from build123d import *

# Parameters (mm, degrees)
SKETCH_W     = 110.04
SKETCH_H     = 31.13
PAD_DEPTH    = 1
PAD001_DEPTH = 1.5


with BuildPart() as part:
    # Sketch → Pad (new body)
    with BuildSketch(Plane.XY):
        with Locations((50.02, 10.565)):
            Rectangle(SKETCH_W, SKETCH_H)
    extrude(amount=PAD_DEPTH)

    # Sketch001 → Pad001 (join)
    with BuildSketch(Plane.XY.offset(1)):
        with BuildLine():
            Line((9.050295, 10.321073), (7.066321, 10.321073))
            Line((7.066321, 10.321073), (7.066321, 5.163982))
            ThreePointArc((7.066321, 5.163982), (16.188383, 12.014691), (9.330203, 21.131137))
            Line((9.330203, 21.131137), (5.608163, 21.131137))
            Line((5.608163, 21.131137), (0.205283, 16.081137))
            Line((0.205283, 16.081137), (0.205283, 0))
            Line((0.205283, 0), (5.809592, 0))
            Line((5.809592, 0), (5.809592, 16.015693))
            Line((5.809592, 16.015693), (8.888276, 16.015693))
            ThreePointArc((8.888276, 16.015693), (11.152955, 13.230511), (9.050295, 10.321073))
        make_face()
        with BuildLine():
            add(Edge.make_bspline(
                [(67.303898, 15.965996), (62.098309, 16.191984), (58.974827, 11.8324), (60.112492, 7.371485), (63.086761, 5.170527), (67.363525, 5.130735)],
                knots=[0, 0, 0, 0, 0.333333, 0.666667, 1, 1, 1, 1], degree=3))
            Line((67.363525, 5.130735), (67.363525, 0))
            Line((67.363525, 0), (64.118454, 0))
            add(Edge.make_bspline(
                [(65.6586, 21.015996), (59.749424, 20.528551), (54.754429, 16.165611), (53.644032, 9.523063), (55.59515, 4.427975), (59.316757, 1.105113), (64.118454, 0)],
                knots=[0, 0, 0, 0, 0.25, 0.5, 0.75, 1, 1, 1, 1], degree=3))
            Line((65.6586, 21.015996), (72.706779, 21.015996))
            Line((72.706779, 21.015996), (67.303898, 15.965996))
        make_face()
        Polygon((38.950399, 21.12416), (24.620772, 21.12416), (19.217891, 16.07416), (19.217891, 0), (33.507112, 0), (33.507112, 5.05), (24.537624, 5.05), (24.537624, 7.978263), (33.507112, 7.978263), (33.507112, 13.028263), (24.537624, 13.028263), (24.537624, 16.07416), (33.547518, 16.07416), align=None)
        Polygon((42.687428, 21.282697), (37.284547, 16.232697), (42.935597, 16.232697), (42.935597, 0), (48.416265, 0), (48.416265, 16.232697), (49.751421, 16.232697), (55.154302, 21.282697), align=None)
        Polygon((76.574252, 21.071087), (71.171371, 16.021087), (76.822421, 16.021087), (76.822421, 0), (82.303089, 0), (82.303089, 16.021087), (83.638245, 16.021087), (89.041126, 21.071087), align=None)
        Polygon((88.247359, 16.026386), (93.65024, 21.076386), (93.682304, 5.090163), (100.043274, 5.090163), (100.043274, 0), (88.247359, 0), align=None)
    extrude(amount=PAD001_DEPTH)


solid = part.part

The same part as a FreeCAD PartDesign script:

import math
import FreeCAD as App
import Part
import Sketcher
from FreeCAD import Vector
Q = App.Units.Quantity

doc = App.newDocument("Part")
params = doc.addObject("Spreadsheet::Sheet", "Params")
for row, (alias, value) in enumerate([
    ("sketch1_width", "110.04 mm"),
    ("sketch1_height", "31.13 mm"),
    ("pad1_length", "1 mm"),
    ("sketch2_height", "5.05 mm"),
    ("pad2_length", "1.5 mm"),
], start=1):
    params.set(f"A{row}", alias)
    params.set(f"B{row}", "=" + value)
    params.setAlias(f"B{row}", alias)

body = doc.addObject("PartDesign::Body", "Body")

# Sketch on XY plane
sketch1 = body.newObject("Sketcher::SketchObject", "Sketch")
sketch1.AttachmentSupport = (doc.getObject("XY_Plane"), [""])
sketch1.MapMode = "FlatFace"
sketch1.addGeometry([
    Part.LineSegment(Vector(-5, 26.13, 0), Vector(-5, -5, 0)),
    Part.LineSegment(Vector(-5, -5, 0), Vector(105.04, -5, 0)),
    Part.LineSegment(Vector(105.04, -5, 0), Vector(105.04, 26.13, 0)),
    Part.LineSegment(Vector(105.04, 26.13, 0), Vector(-5, 26.13, 0)),
], False)
sketch1.addConstraint([
    Sketcher.Constraint("Coincident", 0, 2, 1, 1),
    Sketcher.Constraint("Coincident", 1, 2, 2, 1),
    Sketcher.Constraint("Coincident", 2, 2, 3, 1),
    Sketcher.Constraint("Coincident", 3, 2, 0, 1),
    Sketcher.Constraint("Vertical", 0),
    Sketcher.Constraint("Horizontal", 1),
    Sketcher.Constraint("Vertical", 2),
    Sketcher.Constraint("Horizontal", 3),
    Sketcher.Constraint("DistanceX", 0, 2, -1, 1, Q("5 mm")),
    Sketcher.Constraint("DistanceY", 0, 2, -1, 1, Q("5 mm")),
    Sketcher.Constraint("DistanceX", 1, 1, 1, 2, Q("110.04 mm")),
    Sketcher.Constraint("DistanceY", 0, 2, 0, 1, Q("31.13 mm")),
])
sketch1.setExpression("Constraints[10]", "Params.sketch1_width")
sketch1.setExpression("Constraints[11]", "Params.sketch1_height")
pad1 = body.newObject("PartDesign::Pad", "Pad")
pad1.Profile = sketch1
pad1.setExpression("Length", "Params.pad1_length")

# Sketch on XY plane
sketch2 = body.newObject("Sketcher::SketchObject", "Sketch001")
sketch2.AttachmentSupport = (doc.getObject("XY_Plane"), [""])
sketch2.MapMode = "FlatFace"
sketch2.AttachmentOffset = App.Placement(Vector(0, 0, 1), App.Rotation())
sketch2.addGeometry([
    Part.LineSegment(Vector(9.050295, 10.321073, 0), Vector(7.066321, 10.321073, 0)),  # 0
    Part.LineSegment(Vector(7.066321, 10.321073, 0), Vector(7.066321, 5.163982, 0)),  # 1
    Part.ArcOfCircle(Part.Circle(Vector(8.204803, 13.146632, 0), Vector(0, 0, 1), 8.063426), math.radians(-98.11676), math.radians(81.977123)),  # 2
    Part.LineSegment(Vector(9.330203, 21.131137, 0), Vector(5.608163, 21.131137, 0)),  # 3
    Part.LineSegment(Vector(5.608163, 21.131137, 0), Vector(0.205283, 16.081137, 0)),  # 4
    Part.LineSegment(Vector(0.205283, 16.081137, 0), Vector(0.205283, 0, 0)),  # 5
    Part.LineSegment(Vector(0.205283, 0, 0), Vector(5.809592, 0, 0)),  # 6
    Part.LineSegment(Vector(5.809592, 0, 0), Vector(5.809592, 16.015693, 0)),  # 7
    Part.LineSegment(Vector(5.809592, 16.015693, 0), Vector(8.888276, 16.015693, 0)),  # 8
    Part.ArcOfCircle(Part.Circle(Vector(8.204801, 13.146632, 0), Vector(0, 0, 1), 2.949347), math.radians(-73.34121), math.radians(76.600603)),  # 9
    Part.BSplineCurve([Vector(67.303898, 15.965996, 0), Vector(62.098309, 16.191984, 0), Vector(58.974827, 11.8324, 0), Vector(60.112492, 7.371485, 0), Vector(63.086761, 5.170527, 0), Vector(67.363525, 5.130735, 0)], [4, 1, 1, 4], [0, 0.333333, 0.666667, 1], False, 3, [1, 1, 1, 1, 1, 1], False),  # 10
    Part.LineSegment(Vector(67.303898, 15.965996, 0), Vector(72.706779, 21.015996, 0)),  # 11
    Part.LineSegment(Vector(72.706779, 21.015996, 0), Vector(65.6586, 21.015996, 0)),  # 12
    Part.BSplineCurve([Vector(65.6586, 21.015996, 0), Vector(59.749424, 20.528551, 0), Vector(54.754429, 16.165611, 0), Vector(53.644032, 9.523063, 0), Vector(55.59515, 4.427975, 0), Vector(59.316757, 1.105113, 0), Vector(64.118454, 0, 0)], [4, 1, 1, 1, 4], [0, 0.25, 0.5, 0.75, 1], False, 3, [1, 1, 1, 1, 1, 1, 1], False),  # 13
    Part.LineSegment(Vector(64.118454, 0, 0), Vector(67.363525, 0, 0)),  # 14
    Part.LineSegment(Vector(67.363525, 0, 0), Vector(67.363525, 5.130735, 0)),  # 15
    Part.LineSegment(Vector(38.950399, 21.12416, 0), Vector(24.620772, 21.12416, 0)),  # 16
    Part.LineSegment(Vector(24.620772, 21.12416, 0), Vector(19.217891, 16.07416, 0)),  # 17
    Part.LineSegment(Vector(19.217891, 16.07416, 0), Vector(19.217891, 0, 0)),  # 18
    Part.LineSegment(Vector(19.217891, 0, 0), Vector(33.507112, 0, 0)),  # 19
    Part.LineSegment(Vector(33.507112, 0, 0), Vector(33.507112, 5.05, 0)),  # 20
    Part.LineSegment(Vector(33.507112, 5.05, 0), Vector(24.537624, 5.05, 0)),  # 21
    Part.LineSegment(Vector(24.537624, 5.05, 0), Vector(24.537624, 7.978263, 0)),  # 22
    Part.LineSegment(Vector(24.537624, 7.978263, 0), Vector(33.507112, 7.978263, 0)),  # 23
    Part.LineSegment(Vector(33.507112, 7.978263, 0), Vector(33.507112, 13.028263, 0)),  # 24
    Part.LineSegment(Vector(33.507112, 13.028263, 0), Vector(24.537624, 13.028263, 0)),  # 25
    Part.LineSegment(Vector(24.537624, 13.028263, 0), Vector(24.537624, 16.07416, 0)),  # 26
    Part.LineSegment(Vector(24.537624, 16.07416, 0), Vector(33.547518, 16.07416, 0)),  # 27
    Part.LineSegment(Vector(33.547518, 16.07416, 0), Vector(38.950399, 21.12416, 0)),  # 28
    Part.LineSegment(Vector(42.687428, 21.282697, 0), Vector(37.284547, 16.232697, 0)),  # 29
    Part.LineSegment(Vector(37.284547, 16.232697, 0), Vector(42.935597, 16.232697, 0)),  # 30
    Part.LineSegment(Vector(42.935597, 16.232697, 0), Vector(42.935597, 0, 0)),  # 31
    Part.LineSegment(Vector(42.935597, 0, 0), Vector(48.416265, 0, 0)),  # 32
    Part.LineSegment(Vector(48.416265, 0, 0), Vector(48.416265, 16.232697, 0)),  # 33
    Part.LineSegment(Vector(48.416265, 16.232697, 0), Vector(49.751421, 16.232697, 0)),  # 34
    Part.LineSegment(Vector(49.751421, 16.232697, 0), Vector(55.154302, 21.282697, 0)),  # 35
    Part.LineSegment(Vector(55.154302, 21.282697, 0), Vector(42.687428, 21.282697, 0)),  # 36
    Part.LineSegment(Vector(76.574252, 21.071087, 0), Vector(71.171371, 16.021087, 0)),  # 37
    Part.LineSegment(Vector(71.171371, 16.021087, 0), Vector(76.822421, 16.021087, 0)),  # 38
    Part.LineSegment(Vector(76.822421, 16.021087, 0), Vector(76.822421, 0, 0)),  # 39
    Part.LineSegment(Vector(76.822421, 0, 0), Vector(82.303089, 0, 0)),  # 40
    Part.LineSegment(Vector(82.303089, 0, 0), Vector(82.303089, 16.021087, 0)),  # 41
    Part.LineSegment(Vector(82.303089, 16.021087, 0), Vector(83.638245, 16.021087, 0)),  # 42
    Part.LineSegment(Vector(83.638245, 16.021087, 0), Vector(89.041126, 21.071087, 0)),  # 43
    Part.LineSegment(Vector(89.041126, 21.071087, 0), Vector(76.574252, 21.071087, 0)),  # 44
    Part.LineSegment(Vector(93.65024, 21.076386, 0), Vector(88.247359, 16.026386, 0)),  # 45
    Part.LineSegment(Vector(88.247359, 16.026386, 0), Vector(88.247359, 0, 0)),  # 46
    Part.LineSegment(Vector(88.247359, 0, 0), Vector(100.043274, 0, 0)),  # 47
    Part.LineSegment(Vector(100.043274, 0, 0), Vector(100.043274, 5.090163, 0)),  # 48
    Part.LineSegment(Vector(100.043274, 5.090163, 0), Vector(93.682304, 5.090163, 0)),  # 49
    Part.LineSegment(Vector(93.682304, 5.090163, 0), Vector(93.65024, 21.076386, 0)),  # 50
], False)
sketch2.addConstraint([
    Sketcher.Constraint("Block", 10),
    Sketcher.Constraint("Block", 13),
    Sketcher.Constraint("Coincident", 0, 2, 1, 1),
    Sketcher.Constraint("Coincident", 1, 2, 2, 1),
    Sketcher.Constraint("Coincident", 2, 2, 3, 1),
    Sketcher.Constraint("Coincident", 3, 2, 4, 1),
    Sketcher.Constraint("Coincident", 4, 2, 5, 1),
    Sketcher.Constraint("Coincident", 5, 2, 6, 1),
    Sketcher.Constraint("Coincident", 6, 2, 7, 1),
    Sketcher.Constraint("Coincident", 7, 2, 8, 1),
    Sketcher.Constraint("Coincident", 8, 2, 9, 2),
    Sketcher.Constraint("Coincident", 9, 1, 0, 1),
    Sketcher.Constraint("Coincident", 10, 1, 11, 1),
    Sketcher.Constraint("Coincident", 11, 2, 12, 1),
    Sketcher.Constraint("Coincident", 12, 2, 13, 1),
    Sketcher.Constraint("Coincident", 13, 2, 14, 1),
    Sketcher.Constraint("Coincident", 14, 2, 15, 1),
    Sketcher.Constraint("Coincident", 15, 2, 10, 2),
    Sketcher.Constraint("Coincident", 16, 2, 17, 1),
    Sketcher.Constraint("Coincident", 17, 2, 18, 1),
    Sketcher.Constraint("Coincident", 18, 2, 19, 1),
    Sketcher.Constraint("Coincident", 19, 2, 20, 1),
    Sketcher.Constraint("Coincident", 20, 2, 21, 1),
    Sketcher.Constraint("Coincident", 21, 2, 22, 1),
    Sketcher.Constraint("Coincident", 22, 2, 23, 1),
    Sketcher.Constraint("Coincident", 23, 2, 24, 1),
    Sketcher.Constraint("Coincident", 24, 2, 25, 1),
    Sketcher.Constraint("Coincident", 25, 2, 26, 1),
    Sketcher.Constraint("Coincident", 26, 2, 27, 1),
    Sketcher.Constraint("Coincident", 27, 2, 28, 1),
    Sketcher.Constraint("Coincident", 28, 2, 16, 1),
    Sketcher.Constraint("Coincident", 29, 2, 30, 1),
    Sketcher.Constraint("Coincident", 30, 2, 31, 1),
    Sketcher.Constraint("Coincident", 31, 2, 32, 1),
    Sketcher.Constraint("Coincident", 32, 2, 33, 1),
    Sketcher.Constraint("Coincident", 33, 2, 34, 1),
    Sketcher.Constraint("Coincident", 34, 2, 35, 1),
    Sketcher.Constraint("Coincident", 35, 2, 36, 1),
    Sketcher.Constraint("Coincident", 36, 2, 29, 1),
    Sketcher.Constraint("Coincident", 37, 2, 38, 1),
    Sketcher.Constraint("Coincident", 38, 2, 39, 1),
    Sketcher.Constraint("Coincident", 39, 2, 40, 1),
    Sketcher.Constraint("Coincident", 40, 2, 41, 1),
    Sketcher.Constraint("Coincident", 41, 2, 42, 1),
    Sketcher.Constraint("Coincident", 42, 2, 43, 1),
    Sketcher.Constraint("Coincident", 43, 2, 44, 1),
    Sketcher.Constraint("Coincident", 44, 2, 37, 1),
    Sketcher.Constraint("Coincident", 45, 2, 46, 1),
    Sketcher.Constraint("Coincident", 46, 2, 47, 1),
    Sketcher.Constraint("Coincident", 47, 2, 48, 1),
    Sketcher.Constraint("Coincident", 48, 2, 49, 1),
    Sketcher.Constraint("Coincident", 49, 2, 50, 1),
    Sketcher.Constraint("Coincident", 50, 2, 45, 1),
    Sketcher.Constraint("Horizontal", 0),
    Sketcher.Constraint("Vertical", 1),
    Sketcher.Constraint("Horizontal", 3),
    Sketcher.Constraint("Vertical", 5),
    Sketcher.Constraint("Horizontal", 6),
    Sketcher.Constraint("Vertical", 7),
    Sketcher.Constraint("Horizontal", 8),
    Sketcher.Constraint("Horizontal", 12),
    Sketcher.Constraint("Horizontal", 14),
    Sketcher.Constraint("Vertical", 15),
    Sketcher.Constraint("Horizontal", 16),
    Sketcher.Constraint("Vertical", 18),
    Sketcher.Constraint("Horizontal", 19),
    Sketcher.Constraint("Vertical", 20),
    Sketcher.Constraint("Horizontal", 21),
    Sketcher.Constraint("Vertical", 22),
    Sketcher.Constraint("Horizontal", 23),
    Sketcher.Constraint("Vertical", 24),
    Sketcher.Constraint("Horizontal", 25),
    Sketcher.Constraint("Vertical", 26),
    Sketcher.Constraint("Horizontal", 27),
    Sketcher.Constraint("Horizontal", 30),
    Sketcher.Constraint("Vertical", 31),
    Sketcher.Constraint("Horizontal", 32),
    Sketcher.Constraint("Vertical", 33),
    Sketcher.Constraint("Horizontal", 34),
    Sketcher.Constraint("Horizontal", 36),
    Sketcher.Constraint("Horizontal", 38),
    Sketcher.Constraint("Vertical", 39),
    Sketcher.Constraint("Horizontal", 40),
    Sketcher.Constraint("Vertical", 41),
    Sketcher.Constraint("Horizontal", 42),
    Sketcher.Constraint("Horizontal", 44),
    Sketcher.Constraint("Vertical", 46),
    Sketcher.Constraint("Horizontal", 47),
    Sketcher.Constraint("Vertical", 48),
    Sketcher.Constraint("Horizontal", 49),
    Sketcher.Constraint("Coincident", 9, 3, 2, 3),
    Sketcher.Constraint("PointOnObject", 5, 2, -1),
    Sketcher.Constraint("PointOnObject", 18, 2, -1),
    Sketcher.Constraint("PointOnObject", 31, 2, -1),
    Sketcher.Constraint("PointOnObject", 39, 2, -1),
    Sketcher.Constraint("PointOnObject", 46, 2, -1),
    Sketcher.Constraint("Parallel", 4, 11),
    Sketcher.Constraint("Parallel", 11, 17),
    Sketcher.Constraint("Parallel", 17, 28),
    Sketcher.Constraint("Parallel", 28, 29),
    Sketcher.Constraint("Parallel", 29, 35),
    Sketcher.Constraint("Parallel", 35, 37),
    Sketcher.Constraint("Parallel", 37, 43),
    Sketcher.Constraint("Parallel", 43, 45),
    Sketcher.Constraint("Horizontal", 17, 2, 26, 2),
    Sketcher.Constraint("Horizontal", 30, 2, 33, 2),
    Sketcher.Constraint("Horizontal", 38, 2, 41, 2),
    Sketcher.Constraint("Vertical", 20, 2, 23, 2),
    Sketcher.Constraint("Vertical", 22, 2, 25, 2),
    Sketcher.Constraint("Equal", 30, 38),
    Sketcher.Constraint("Equal", 32, 40),
    Sketcher.Constraint("Equal", 34, 42),
    Sketcher.Constraint("Equal", 20, 24),
    Sketcher.Constraint("Equal", 4, 11),
    Sketcher.Constraint("Equal", 11, 17),
    Sketcher.Constraint("Equal", 28, 29),
    Sketcher.Constraint("Equal", 35, 37),
    Sketcher.Constraint("Equal", 43, 45),
    Sketcher.Constraint("DistanceY", 20, 1, 20, 2, Q("5.05 mm")),
    Sketcher.Constraint("Radius", 2, Q("8.063426 mm")),
    Sketcher.Constraint("Radius", 9, Q("2.949347 mm")),
    Sketcher.Constraint("DistanceX", 3, 2, 3, 1, Q("3.72204 mm")),
    Sketcher.Constraint("DistanceX", 6, 1, 6, 2, Q("5.604309 mm")),
    Sketcher.Constraint("DistanceX", 12, 2, 12, 1, Q("7.048179 mm")),
    Sketcher.Constraint("DistanceX", 19, 1, 19, 2, Q("14.289221 mm")),
    Sketcher.Constraint("DistanceX", 30, 1, 30, 2, Q("5.65105 mm")),
    Sketcher.Constraint("DistanceX", 32, 1, 32, 2, Q("5.480668 mm")),
    Sketcher.Constraint("DistanceX", 49, 2, 49, 1, Q("6.36097 mm")),
    Sketcher.Constraint("DistanceY", 1, 2, 1, 1, Q("5.157091 mm")),
    Sketcher.Constraint("DistanceY", 18, 2, 18, 1, Q("16.07416 mm")),
    Sketcher.Constraint("DistanceX", -1, 1, 9, 3, Q("8.204801 mm")),
    Sketcher.Constraint("DistanceX", -1, 1, 28, 2, Q("38.950399 mm")),
    Sketcher.Constraint("DistanceX", 9, 3, 2, 2, Q("1.125402 mm")),
    Sketcher.Constraint("DistanceX", 6, 2, 18, 2, Q("13.408299 mm")),
    Sketcher.Constraint("DistanceX", 28, 2, 30, 2, Q("3.985198 mm")),
    Sketcher.Constraint("DistanceX", 35, 2, 12, 2, Q("10.504298 mm")),
    Sketcher.Constraint("DistanceY", 12, 2, 35, 2, Q("0.266701 mm")),
    Sketcher.Constraint("DistanceY", 42, 2, 45, 2, Q("0.005299 mm")),
    Sketcher.Constraint("DistanceX", 0, 2, 0, 1, Q("1.983974 mm")),
    Sketcher.Constraint("DistanceX", 8, 1, 8, 2, Q("3.078684 mm")),
    Sketcher.Constraint("DistanceX", 21, 2, 21, 1, Q("8.969488 mm")),
    Sketcher.Constraint("DistanceX", 47, 1, 47, 2, Q("11.795915 mm")),
    Sketcher.Constraint("DistanceY", 5, 2, 5, 1, Q("16.081137 mm")),
    Sketcher.Constraint("DistanceY", 22, 1, 22, 2, Q("2.928263 mm")),
    Sketcher.Constraint("DistanceY", 39, 2, 39, 1, Q("16.021087 mm")),
    Sketcher.Constraint("DistanceY", 48, 1, 48, 2, Q("5.090163 mm")),
    Sketcher.Constraint("DistanceX", -1, 1, 37, 2, Q("71.171371 mm")),
    Sketcher.Constraint("DistanceX", -1, 1, 45, 2, Q("88.247359 mm")),
])
sketch2.setExpression("Constraints[118]", "Params.sketch2_height")
pad2 = body.newObject("PartDesign::Pad", "Pad001")
pad2.Profile = sketch2
pad2.setExpression("Length", "Params.pad2_length")

doc.recompute()
